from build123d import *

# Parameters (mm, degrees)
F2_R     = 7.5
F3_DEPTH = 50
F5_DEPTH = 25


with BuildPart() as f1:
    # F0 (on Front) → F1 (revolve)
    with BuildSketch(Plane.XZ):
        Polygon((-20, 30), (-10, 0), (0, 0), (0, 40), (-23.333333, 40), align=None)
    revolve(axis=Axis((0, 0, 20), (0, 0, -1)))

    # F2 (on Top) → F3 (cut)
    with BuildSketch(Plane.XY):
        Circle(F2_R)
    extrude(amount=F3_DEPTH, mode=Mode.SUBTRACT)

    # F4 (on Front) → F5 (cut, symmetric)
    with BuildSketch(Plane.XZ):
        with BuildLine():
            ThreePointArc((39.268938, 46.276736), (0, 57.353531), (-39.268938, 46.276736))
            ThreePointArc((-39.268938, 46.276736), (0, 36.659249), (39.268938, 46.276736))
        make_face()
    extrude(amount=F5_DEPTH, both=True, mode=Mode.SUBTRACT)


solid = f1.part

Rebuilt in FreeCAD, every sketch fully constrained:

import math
import FreeCAD as App
import Part
import Sketcher
from FreeCAD import Vector
Q = App.Units.Quantity


def add_polygon(sketch, points):
    """Adds a closed chain of lines whose ends are joined by coincident constraints."""
    first, n = sketch.GeometryCount, len(points)
    for a, b in zip(points, points[1:] + points[:1]):
        sketch.addGeometry(Part.LineSegment(App.Vector(*a, 0), App.Vector(*b, 0)), False)
    for i in range(n):
        sketch.addConstraint(Sketcher.Constraint("Coincident", first + i, 2, first + (i + 1) % n, 1))

doc = App.newDocument("Part")
body = doc.addObject("PartDesign::Body", "Body")

# Sketch on XZ plane
sketch1 = body.newObject("Sketcher::SketchObject", "Sketch")
sketch1.AttachmentSupport = (doc.getObject("XZ_Plane"), [""])
sketch1.MapMode = "FlatFace"
add_polygon(sketch1, [(-20, 30), (-10, 0), (0, 0), (0, 40), (-23.333333, 40)])  # lines 0-4
sketch1.addConstraint([
    Sketcher.Constraint("Horizontal", 1),
    Sketcher.Constraint("Vertical", 2),
    Sketcher.Constraint("Horizontal", 3),
    Sketcher.Constraint("Coincident", 1, 2, -1, 1),
    Sketcher.Constraint("Parallel", 0, 4),
    Sketcher.Constraint("DistanceX", 1, 1, 1, 2, Q("10 mm")),
    Sketcher.Constraint("DistanceY", 2, 1, 2, 2, Q("40 mm")),
    Sketcher.Constraint("DistanceX", 4, 2, -1, 1, Q("20 mm")),
    Sketcher.Constraint("DistanceY", -1, 1, 4, 2, Q("30 mm")),
])
revolution = body.newObject("PartDesign::Revolution", "Revolution")
revolution.Profile = sketch1
revolution.ReferenceAxis = (sketch1, ["V_Axis"])
revolution.Angle = 360

# Sketch on XY plane
sketch2 = body.newObject("Sketcher::SketchObject", "Sketch001")
sketch2.AttachmentSupport = (doc.getObject("XY_Plane"), [""])
sketch2.MapMode = "FlatFace"
sketch2.addGeometry(Part.Circle(Vector(0, 0, 0), Vector(0, 0, 1), 7.5), False)
sketch2.addConstraint([
    Sketcher.Constraint("Coincident", 0, 3, -1, 1),
    Sketcher.Constraint("Diameter", 0, Q("15 mm")),
])
pocket1 = body.newObject("PartDesign::Pocket", "Pocket")
pocket1.Profile = sketch2
pocket1.Length = 50
pocket1.Reversed = True

# Sketch on XZ plane
sketch3 = body.newObject("Sketcher::SketchObject", "Sketch002")
sketch3.AttachmentSupport = (doc.getObject("XZ_Plane"), [""])
sketch3.MapMode = "FlatFace"
sketch3.addGeometry([
    Part.ArcOfCircle(Part.Circle(Vector(0, -17.792072, 0), Vector(0, 0, 1), 75.145603), math.radians(58.49511), math.radians(121.50489)),
    Part.ArcOfCircle(Part.Circle(Vector(0, 121.637037, 0), Vector(0, 0, 1), 84.977788), math.radians(-117.523234), math.radians(-62.476766)),
], False)
sketch3.addConstraint([
    Sketcher.Constraint("Coincident", 0, 1, 1, 2),
    Sketcher.Constraint("Coincident", 1, 1, 0, 2),
    Sketcher.Constraint("Symmetric", 0, 1, 1, 1, -2),
    Sketcher.Constraint("Radius", 1, Q("84.977788 mm")),
    Sketcher.Constraint("Radius", 0, Q("75.145603 mm")),
    Sketcher.Constraint("DistanceY", 0, 1, 1, 3, Q("75.360301 mm")),
    Sketcher.Constraint("DistanceY", 0, 3, -1, 1, Q("17.792072 mm")),
])
pocket2 = body.newObject("PartDesign::Pocket", "Pocket001")
pocket2.Profile = sketch3
pocket2.Length = 50
pocket2.Midplane = True

doc.recompute()
